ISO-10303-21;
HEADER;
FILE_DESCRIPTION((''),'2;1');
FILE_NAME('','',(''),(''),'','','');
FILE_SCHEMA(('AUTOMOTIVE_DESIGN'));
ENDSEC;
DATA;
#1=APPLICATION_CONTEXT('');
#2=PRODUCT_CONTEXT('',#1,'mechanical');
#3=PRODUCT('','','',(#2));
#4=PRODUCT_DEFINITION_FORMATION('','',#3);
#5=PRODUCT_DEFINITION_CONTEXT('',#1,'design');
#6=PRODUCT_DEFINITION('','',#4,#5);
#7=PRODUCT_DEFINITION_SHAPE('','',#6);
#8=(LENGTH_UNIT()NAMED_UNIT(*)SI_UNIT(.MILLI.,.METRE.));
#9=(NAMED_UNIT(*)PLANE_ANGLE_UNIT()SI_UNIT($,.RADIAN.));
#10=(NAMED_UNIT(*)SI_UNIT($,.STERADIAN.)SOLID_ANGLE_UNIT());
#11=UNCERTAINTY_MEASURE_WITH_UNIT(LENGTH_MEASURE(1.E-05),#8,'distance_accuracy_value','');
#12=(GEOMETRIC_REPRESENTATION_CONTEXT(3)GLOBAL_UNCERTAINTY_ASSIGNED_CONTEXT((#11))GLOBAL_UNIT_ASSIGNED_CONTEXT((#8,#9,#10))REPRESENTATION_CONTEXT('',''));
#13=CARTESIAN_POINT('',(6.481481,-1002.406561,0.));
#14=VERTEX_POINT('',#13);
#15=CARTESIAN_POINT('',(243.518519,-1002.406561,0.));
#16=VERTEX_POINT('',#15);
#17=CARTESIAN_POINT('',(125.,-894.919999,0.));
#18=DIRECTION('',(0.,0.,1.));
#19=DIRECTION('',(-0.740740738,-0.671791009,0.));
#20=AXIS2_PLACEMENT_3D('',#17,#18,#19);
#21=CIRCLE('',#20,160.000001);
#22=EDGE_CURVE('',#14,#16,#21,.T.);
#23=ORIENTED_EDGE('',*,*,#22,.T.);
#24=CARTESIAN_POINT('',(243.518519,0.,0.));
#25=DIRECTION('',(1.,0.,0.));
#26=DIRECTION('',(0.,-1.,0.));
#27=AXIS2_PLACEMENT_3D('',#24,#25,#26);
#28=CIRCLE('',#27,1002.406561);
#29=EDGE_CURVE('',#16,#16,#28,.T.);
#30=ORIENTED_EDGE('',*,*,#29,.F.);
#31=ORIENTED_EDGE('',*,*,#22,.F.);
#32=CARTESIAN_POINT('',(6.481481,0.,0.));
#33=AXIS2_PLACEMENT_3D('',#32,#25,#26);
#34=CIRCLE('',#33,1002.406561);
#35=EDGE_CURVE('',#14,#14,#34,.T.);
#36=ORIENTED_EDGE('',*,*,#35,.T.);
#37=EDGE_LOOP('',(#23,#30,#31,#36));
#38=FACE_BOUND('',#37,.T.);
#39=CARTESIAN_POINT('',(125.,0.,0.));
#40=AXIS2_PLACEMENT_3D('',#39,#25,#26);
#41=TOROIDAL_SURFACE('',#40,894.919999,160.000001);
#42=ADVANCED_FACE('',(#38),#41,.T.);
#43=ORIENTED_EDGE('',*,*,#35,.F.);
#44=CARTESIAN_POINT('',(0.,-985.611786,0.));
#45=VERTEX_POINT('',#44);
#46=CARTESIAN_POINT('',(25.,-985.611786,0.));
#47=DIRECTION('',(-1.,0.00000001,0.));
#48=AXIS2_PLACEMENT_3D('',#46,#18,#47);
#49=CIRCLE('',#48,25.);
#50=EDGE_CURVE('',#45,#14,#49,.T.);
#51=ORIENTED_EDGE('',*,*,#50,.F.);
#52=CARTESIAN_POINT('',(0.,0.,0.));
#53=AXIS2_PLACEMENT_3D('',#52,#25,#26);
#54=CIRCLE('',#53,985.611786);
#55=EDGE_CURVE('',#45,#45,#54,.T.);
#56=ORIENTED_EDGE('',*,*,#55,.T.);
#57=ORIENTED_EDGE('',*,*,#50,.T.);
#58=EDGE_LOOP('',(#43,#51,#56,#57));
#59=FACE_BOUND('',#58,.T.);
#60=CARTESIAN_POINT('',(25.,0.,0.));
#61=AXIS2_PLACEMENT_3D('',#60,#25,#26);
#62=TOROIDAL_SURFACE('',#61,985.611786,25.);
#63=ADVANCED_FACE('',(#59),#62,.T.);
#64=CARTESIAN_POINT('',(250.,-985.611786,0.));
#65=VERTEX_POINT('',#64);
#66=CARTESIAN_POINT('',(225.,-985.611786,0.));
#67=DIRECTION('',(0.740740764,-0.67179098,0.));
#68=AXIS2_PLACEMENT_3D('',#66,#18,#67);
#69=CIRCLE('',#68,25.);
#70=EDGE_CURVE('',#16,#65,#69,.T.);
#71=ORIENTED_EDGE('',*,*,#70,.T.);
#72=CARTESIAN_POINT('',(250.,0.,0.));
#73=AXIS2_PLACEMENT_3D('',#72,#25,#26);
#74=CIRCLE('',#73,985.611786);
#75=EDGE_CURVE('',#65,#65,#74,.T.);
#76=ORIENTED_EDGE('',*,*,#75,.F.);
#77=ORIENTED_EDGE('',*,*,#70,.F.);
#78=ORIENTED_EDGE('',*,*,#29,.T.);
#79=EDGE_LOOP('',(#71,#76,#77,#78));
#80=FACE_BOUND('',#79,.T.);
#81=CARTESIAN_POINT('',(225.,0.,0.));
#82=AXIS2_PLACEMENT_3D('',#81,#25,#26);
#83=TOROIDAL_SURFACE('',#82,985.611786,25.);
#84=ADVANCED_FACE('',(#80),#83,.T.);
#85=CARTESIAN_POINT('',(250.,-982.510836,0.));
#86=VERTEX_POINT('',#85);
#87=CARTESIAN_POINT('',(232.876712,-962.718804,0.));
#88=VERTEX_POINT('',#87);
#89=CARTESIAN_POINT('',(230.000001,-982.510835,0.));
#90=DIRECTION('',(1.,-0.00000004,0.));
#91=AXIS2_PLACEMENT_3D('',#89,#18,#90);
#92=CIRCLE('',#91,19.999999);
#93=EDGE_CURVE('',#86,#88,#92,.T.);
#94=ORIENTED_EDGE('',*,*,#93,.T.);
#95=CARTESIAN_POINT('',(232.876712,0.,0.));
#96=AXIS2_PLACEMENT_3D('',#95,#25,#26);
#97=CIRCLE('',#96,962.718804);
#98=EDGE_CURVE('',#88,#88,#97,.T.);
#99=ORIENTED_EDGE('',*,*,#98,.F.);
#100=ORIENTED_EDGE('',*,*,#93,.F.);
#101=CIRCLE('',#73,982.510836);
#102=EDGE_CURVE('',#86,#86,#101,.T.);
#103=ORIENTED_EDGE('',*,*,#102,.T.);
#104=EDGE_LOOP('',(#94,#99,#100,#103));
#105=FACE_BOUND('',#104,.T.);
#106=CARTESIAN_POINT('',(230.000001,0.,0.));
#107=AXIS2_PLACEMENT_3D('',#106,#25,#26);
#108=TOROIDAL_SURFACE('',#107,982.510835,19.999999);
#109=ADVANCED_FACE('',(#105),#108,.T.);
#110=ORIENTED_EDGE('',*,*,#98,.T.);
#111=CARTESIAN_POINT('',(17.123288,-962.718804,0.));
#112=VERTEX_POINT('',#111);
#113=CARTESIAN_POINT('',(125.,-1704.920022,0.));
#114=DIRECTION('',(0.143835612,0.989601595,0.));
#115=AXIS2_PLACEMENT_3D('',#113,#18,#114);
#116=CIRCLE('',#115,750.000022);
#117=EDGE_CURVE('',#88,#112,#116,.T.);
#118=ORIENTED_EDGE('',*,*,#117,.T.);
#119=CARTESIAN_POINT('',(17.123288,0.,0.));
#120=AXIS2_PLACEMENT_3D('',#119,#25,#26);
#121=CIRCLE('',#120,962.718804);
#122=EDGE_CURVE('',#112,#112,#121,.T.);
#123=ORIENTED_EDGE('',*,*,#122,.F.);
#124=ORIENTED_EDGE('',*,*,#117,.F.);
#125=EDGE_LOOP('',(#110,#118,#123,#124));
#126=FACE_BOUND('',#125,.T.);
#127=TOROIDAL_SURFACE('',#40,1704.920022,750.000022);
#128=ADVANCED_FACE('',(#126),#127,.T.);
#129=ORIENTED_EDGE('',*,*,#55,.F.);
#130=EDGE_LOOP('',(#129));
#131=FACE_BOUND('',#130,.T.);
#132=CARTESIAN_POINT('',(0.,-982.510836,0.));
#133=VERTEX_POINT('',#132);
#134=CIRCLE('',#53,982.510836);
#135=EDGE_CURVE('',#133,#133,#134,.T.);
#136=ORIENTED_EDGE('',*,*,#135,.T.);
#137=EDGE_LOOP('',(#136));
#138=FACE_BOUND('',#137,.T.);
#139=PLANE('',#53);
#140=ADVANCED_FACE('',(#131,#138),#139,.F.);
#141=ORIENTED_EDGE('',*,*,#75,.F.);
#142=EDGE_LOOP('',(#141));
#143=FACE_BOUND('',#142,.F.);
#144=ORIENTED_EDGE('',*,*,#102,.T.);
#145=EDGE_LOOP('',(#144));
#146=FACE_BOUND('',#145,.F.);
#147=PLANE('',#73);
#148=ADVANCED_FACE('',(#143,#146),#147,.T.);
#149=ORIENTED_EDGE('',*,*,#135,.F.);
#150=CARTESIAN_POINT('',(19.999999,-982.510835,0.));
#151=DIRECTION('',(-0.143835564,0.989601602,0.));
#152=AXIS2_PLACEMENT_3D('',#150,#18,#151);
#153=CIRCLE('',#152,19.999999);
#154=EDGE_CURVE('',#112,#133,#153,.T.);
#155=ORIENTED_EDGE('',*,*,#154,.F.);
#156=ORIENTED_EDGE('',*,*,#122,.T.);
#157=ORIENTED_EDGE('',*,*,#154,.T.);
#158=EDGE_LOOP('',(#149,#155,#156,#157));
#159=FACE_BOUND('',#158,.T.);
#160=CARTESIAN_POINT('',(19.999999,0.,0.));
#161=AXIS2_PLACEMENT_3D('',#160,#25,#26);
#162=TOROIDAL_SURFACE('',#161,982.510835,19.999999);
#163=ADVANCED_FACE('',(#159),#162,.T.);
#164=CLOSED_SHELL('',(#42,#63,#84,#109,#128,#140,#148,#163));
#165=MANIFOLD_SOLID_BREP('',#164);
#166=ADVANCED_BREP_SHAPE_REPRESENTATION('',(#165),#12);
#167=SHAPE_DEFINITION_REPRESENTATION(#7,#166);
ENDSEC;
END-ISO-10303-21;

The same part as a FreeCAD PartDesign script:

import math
import FreeCAD as App
import Part
import Sketcher

V = App.Vector

doc = App.newDocument("Part")
params = doc.addObject("Spreadsheet::Sheet", "Params")
for row, (alias, value) in enumerate([
    ("sketch1_radius", "25 mm"),
    ("sketch1_radius2", "160.000001 mm"),
    ("sketch1_radius3", "19.999999 mm"),
    ("revolution_angle", "360 deg"),
], start=1):
    params.set(f"A{row}", alias)
    params.set(f"B{row}", "=" + value)
    params.setAlias(f"B{row}", alias)

body = doc.addObject("PartDesign::Body", "Body")

sketch1 = doc.addObject("Sketcher::SketchObject", "Sketch")
body.addObject(sketch1)
sketch1.AttachmentSupport = (doc.XY_Plane, [""])
sketch1.MapMode = "FlatFace"
sketch1.addGeometry([
    Part.LineSegment(V(0, -982.5, 0), V(0, -985.6, 0)),
    Part.ArcOfCircle(Part.Circle(V(25, -985.6, 0), V(0, 0, 1), 25), math.radians(180), math.radians(222)),
    Part.ArcOfCircle(Part.Circle(V(125, -894.9, 0), V(0, 0, 1), 160), math.radians(-138), math.radians(-42)),
    Part.ArcOfCircle(Part.Circle(V(225, -985.6, 0), V(0, 0, 1), 25), math.radians(-42), math.radians(0)),
    Part.LineSegment(V(250, -985.6, 0), V(250, -982.5, 0)),
    Part.ArcOfCircle(Part.Circle(V(230, -982.5, 0), V(0, 0, 1), 20), math.radians(0), math.radians(82)),
    Part.ArcOfCircle(Part.Circle(V(125, -1704.9, 0), V(0, 0, 1), 750), math.radians(81.73), math.radians(98.27)),
    Part.ArcOfCircle(Part.Circle(V(20, -982.5, 0), V(0, 0, 1), 20), math.radians(98), math.radians(180)),
], False)
sketch1.addConstraint([
    Sketcher.Constraint("Tangent", 0, 2, 1, 1),
    Sketcher.Constraint("Tangent", 1, 2, 2, 1),
    Sketcher.Constraint("Tangent", 2, 2, 3, 1),
    Sketcher.Constraint("Tangent", 3, 2, 4, 1),
    Sketcher.Constraint("Tangent", 4, 2, 5, 1),
    Sketcher.Constraint("Tangent", 5, 2, 6, 1),
    Sketcher.Constraint("Tangent", 6, 2, 7, 1),
    Sketcher.Constraint("Tangent", 7, 2, 0, 1),
    Sketcher.Constraint("Vertical", 0),
    Sketcher.Constraint("Vertical", 4),
    Sketcher.Constraint("Equal", 1, 3),
    Sketcher.Constraint("Equal", 5, 7),
    Sketcher.Constraint("PointOnObject", 0, 2, -2),
    Sketcher.Constraint("Horizontal", 1, 3, 3, 3),
    Sketcher.Constraint("Horizontal", 5, 3, 7, 3),
    Sketcher.Constraint("Radius", 1, 25.0),
    Sketcher.Constraint("Radius", 2, 160.000001),
    Sketcher.Constraint("Radius", 5, 19.999999),
    Sketcher.Constraint("DistanceX", -1, 1, 2, 3, 125.0),
    Sketcher.Constraint("DistanceY", 2, 3, -1, 1, 894.919999),
    Sketcher.Constraint("Radius", 6, 750.000022),
    Sketcher.Constraint("DistanceY", 0, 2, 0, 1, 3.10095),
])
sketch1.setExpression("Constraints[15]", "Params.sketch1_radius")
sketch1.setExpression("Constraints[16]", "Params.sketch1_radius2")
sketch1.setExpression("Constraints[17]", "Params.sketch1_radius3")
revolution = doc.addObject("PartDesign::Revolution", "Revolution")
body.addObject(revolution)
revolution.Profile = sketch1
revolution.ReferenceAxis = (sketch1, ["H_Axis"])
revolution.setExpression("Angle", "Params.revolution_angle")

doc.recompute()
